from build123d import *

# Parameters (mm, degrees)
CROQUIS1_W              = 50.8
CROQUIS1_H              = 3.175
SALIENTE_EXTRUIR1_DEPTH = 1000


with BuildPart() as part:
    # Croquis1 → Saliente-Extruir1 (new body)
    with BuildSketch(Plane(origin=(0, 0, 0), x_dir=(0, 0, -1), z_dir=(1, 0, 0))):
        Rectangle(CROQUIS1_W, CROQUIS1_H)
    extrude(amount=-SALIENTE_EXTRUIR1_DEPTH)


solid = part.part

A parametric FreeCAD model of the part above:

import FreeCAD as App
import Part
import Sketcher
Q = App.Units.Quantity


def add_polygon(sketch, points):
    """Adds a closed chain of lines whose ends are joined by coincident constraints."""
    first, n = sketch.GeometryCount, len(points)
    for a, b in zip(points, points[1:] + points[:1]):
        sketch.addGeometry(Part.LineSegment(App.Vector(*a, 0), App.Vector(*b, 0)), False)
    for i in range(n):
        sketch.addConstraint(Sketcher.Constraint("Coincident", first + i, 2, first + (i + 1) % n, 1))

doc = App.newDocument("Part")
body = doc.addObject("PartDesign::Body", "Body")

# Sketch on YZ plane
sketch1 = body.newObject("Sketcher::SketchObject", "Sketch")
sketch1.AttachmentSupport = (doc.getObject("YZ_Plane"), [""])
sketch1.MapMode = "FlatFace"
add_polygon(sketch1, [(1.6, 25.4), (-1.6, 25.4), (-1.6, -25.4), (1.6, -25.4)])  # lines 0-3
sketch1.addConstraint([
    Sketcher.Constraint("Horizontal", 0),
    Sketcher.Constraint("Vertical", 1),
    Sketcher.Constraint("Horizontal", 2),
    Sketcher.Constraint("Vertical", 3),
    Sketcher.Constraint("Symmetric", 0, 2, 2, 2, -1, 1),
    Sketcher.Constraint("DistanceY", 1, 2, 1, 1, Q("2 in")),
    Sketcher.Constraint("DistanceX", 0, 2, 0, 1, Q("0.125 in")),
])
pad1 = body.newObject("PartDesign::Pad", "Pad")
pad1.Profile = sketch1
pad1.Length = 1000
pad1.Reversed = True

doc.recompute()
